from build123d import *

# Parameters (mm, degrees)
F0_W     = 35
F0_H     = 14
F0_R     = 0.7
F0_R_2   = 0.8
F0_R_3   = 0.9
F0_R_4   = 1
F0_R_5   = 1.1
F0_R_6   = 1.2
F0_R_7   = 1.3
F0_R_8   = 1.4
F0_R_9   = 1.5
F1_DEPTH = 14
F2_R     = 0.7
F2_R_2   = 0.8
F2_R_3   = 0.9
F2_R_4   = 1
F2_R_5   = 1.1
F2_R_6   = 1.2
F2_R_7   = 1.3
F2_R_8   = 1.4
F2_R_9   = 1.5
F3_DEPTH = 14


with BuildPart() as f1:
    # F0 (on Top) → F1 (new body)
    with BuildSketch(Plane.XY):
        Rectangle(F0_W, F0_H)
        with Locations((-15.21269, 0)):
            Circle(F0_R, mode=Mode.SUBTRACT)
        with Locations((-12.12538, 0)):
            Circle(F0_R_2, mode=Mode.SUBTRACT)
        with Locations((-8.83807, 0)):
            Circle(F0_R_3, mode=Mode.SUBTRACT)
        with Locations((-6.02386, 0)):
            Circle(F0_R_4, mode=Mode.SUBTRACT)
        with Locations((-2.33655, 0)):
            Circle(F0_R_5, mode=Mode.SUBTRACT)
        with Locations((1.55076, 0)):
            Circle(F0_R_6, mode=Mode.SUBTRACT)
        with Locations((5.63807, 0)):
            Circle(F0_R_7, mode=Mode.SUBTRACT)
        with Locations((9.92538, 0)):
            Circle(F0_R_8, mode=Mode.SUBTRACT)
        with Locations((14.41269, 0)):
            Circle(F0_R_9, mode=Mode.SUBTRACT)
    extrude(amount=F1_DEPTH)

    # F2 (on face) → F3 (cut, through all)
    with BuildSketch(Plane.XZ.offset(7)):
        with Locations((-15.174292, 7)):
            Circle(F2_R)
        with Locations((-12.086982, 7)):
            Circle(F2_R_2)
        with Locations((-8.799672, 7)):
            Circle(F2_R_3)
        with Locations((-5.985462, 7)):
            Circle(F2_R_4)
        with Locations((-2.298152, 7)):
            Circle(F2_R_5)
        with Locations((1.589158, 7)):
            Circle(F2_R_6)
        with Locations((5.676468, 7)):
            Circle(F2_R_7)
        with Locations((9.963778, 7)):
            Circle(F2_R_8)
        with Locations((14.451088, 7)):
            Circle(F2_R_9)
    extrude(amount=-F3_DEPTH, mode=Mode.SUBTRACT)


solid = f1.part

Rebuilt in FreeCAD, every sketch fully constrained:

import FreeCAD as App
import Part
import Sketcher
from FreeCAD import Vector


def add_polygon(sketch, points):
    """Adds a closed chain of lines whose ends are joined by coincident constraints."""
    first, n = sketch.GeometryCount, len(points)
    for a, b in zip(points, points[1:] + points[:1]):
        sketch.addGeometry(Part.LineSegment(App.Vector(*a, 0), App.Vector(*b, 0)), False)
    for i in range(n):
        sketch.addConstraint(Sketcher.Constraint("Coincident", first + i, 2, first + (i + 1) % n, 1))

doc = App.newDocument("Part")
body = doc.addObject("PartDesign::Body", "Body")

sketch1 = body.newObject("Sketcher::SketchObject", "Sketch")
sketch1.AttachmentSupport = (doc.getObject("XY_Plane"), [""])
sketch1.MapMode = "FlatFace"
add_polygon(sketch1, [(-17.5, 7), (-17.5, -7), (17.5, -7), (17.5, 7)])
sketch1.addGeometry(Part.Circle(Vector(-15.21269, 0, 0), Vector(0, 0, 1), 0.7), False)
sketch1.addGeometry(Part.Circle(Vector(-12.12538, 0, 0), Vector(0, 0, 1), 0.8), False)
sketch1.addGeometry(Part.Circle(Vector(-8.83807, 0, 0), Vector(0, 0, 1), 0.9), False)
sketch1.addGeometry(Part.Circle(Vector(-6.02386, 0, 0), Vector(0, 0, 1), 1), False)
sketch1.addGeometry(Part.Circle(Vector(-2.33655, 0, 0), Vector(0, 0, 1), 1.1), False)
sketch1.addGeometry(Part.Circle(Vector(1.55076, 0, 0), Vector(0, 0, 1), 1.2), False)
sketch1.addGeometry(Part.Circle(Vector(5.63807, 0, 0), Vector(0, 0, 1), 1.3), False)
sketch1.addGeometry(Part.Circle(Vector(9.92538, 0, 0), Vector(0, 0, 1), 1.4), False)
sketch1.addGeometry(Part.Circle(Vector(14.41269, 0, 0), Vector(0, 0, 1), 1.5), False)
sketch1.addConstraint([
    Sketcher.Constraint("Vertical", 0),
    Sketcher.Constraint("Horizontal", 1),
    Sketcher.Constraint("Vertical", 2),
    Sketcher.Constraint("Horizontal", 3),
    Sketcher.Constraint("Symmetric", 0, 2, 2, 2, -1, 1),
    Sketcher.Constraint("PointOnObject", 4, 3, -1),
    Sketcher.Constraint("PointOnObject", 5, 3, -1),
    Sketcher.Constraint("PointOnObject", 6, 3, -1),
    Sketcher.Constraint("PointOnObject", 7, 3, -1),
    Sketcher.Constraint("PointOnObject", 8, 3, -1),
    Sketcher.Constraint("PointOnObject", 9, 3, -1),
    Sketcher.Constraint("PointOnObject", 10, 3, -1),
    Sketcher.Constraint("PointOnObject", 11, 3, -1),
    Sketcher.Constraint("PointOnObject", 12, 3, -1),
    Sketcher.Constraint("Diameter", 7, 2.0),
    Sketcher.Constraint("Diameter", 12, 3.0),
    Sketcher.Constraint("Diameter", 4, 1.4),
    Sketcher.Constraint("Diameter", 5, 1.6),
    Sketcher.Constraint("Diameter", 6, 1.8),
    Sketcher.Constraint("Diameter", 8, 2.2),
    Sketcher.Constraint("Diameter", 9, 2.4),
    Sketcher.Constraint("Diameter", 10, 2.6),
    Sketcher.Constraint("Diameter", 11, 2.8),
    Sketcher.Constraint("DistanceX", 1, 1, 1, 2, 35.0),
    Sketcher.Constraint("DistanceY", 0, 2, 0, 1, 14.0),
    Sketcher.Constraint("DistanceX", 4, 3, -1, 1, 15.21269),
    Sketcher.Constraint("DistanceX", 5, 3, -1, 1, 12.12538),
    Sketcher.Constraint("DistanceX", 6, 3, -1, 1, 8.83807),
    Sketcher.Constraint("DistanceX", 7, 3, -1, 1, 6.02386),
    Sketcher.Constraint("DistanceX", 8, 3, -1, 1, 2.33655),
    Sketcher.Constraint("DistanceX", -1, 1, 9, 3, 1.55076),
    Sketcher.Constraint("DistanceX", -1, 1, 10, 3, 5.63807),
    Sketcher.Constraint("DistanceX", -1, 1, 11, 3, 9.92538),
    Sketcher.Constraint("DistanceX", -1, 1, 12, 3, 14.41269),
])
pad1 = body.newObject("PartDesign::Pad", "Pad")
pad1.Profile = sketch1
pad1.Length = 14

sketch2 = body.newObject("Sketcher::SketchObject", "Sketch001")
sketch2.AttachmentSupport = (doc.getObject("XZ_Plane"), [""])
sketch2.MapMode = "FlatFace"
sketch2.AttachmentOffset = App.Placement(Vector(0, 0, 7), App.Rotation())
sketch2.addGeometry([
    Part.Circle(Vector(-15.174292, 7, 0), Vector(0, 0, 1), 0.7),
    Part.Circle(Vector(-12.086982, 7, 0), Vector(0, 0, 1), 0.8),
    Part.Circle(Vector(-8.799672, 7, 0), Vector(0, 0, 1), 0.9),
    Part.Circle(Vector(-5.985462, 7, 0), Vector(0, 0, 1), 1),
    Part.Circle(Vector(-2.298152, 7, 0), Vector(0, 0, 1), 1.1),
    Part.Circle(Vector(1.589158, 7, 0), Vector(0, 0, 1), 1.2),
    Part.Circle(Vector(5.676468, 7, 0), Vector(0, 0, 1), 1.3),
    Part.Circle(Vector(9.963778, 7, 0), Vector(0, 0, 1), 1.4),
    Part.Circle(Vector(14.451088, 7, 0), Vector(0, 0, 1), 1.5),
], False)
sketch2.addConstraint([
    Sketcher.Constraint("Horizontal", 0, 3, 1, 3),
    Sketcher.Constraint("Horizontal", 1, 3, 2, 3),
    Sketcher.Constraint("Horizontal", 2, 3, 3, 3),
    Sketcher.Constraint("Horizontal", 3, 3, 4, 3),
    Sketcher.Constraint("Horizontal", 4, 3, 5, 3),
    Sketcher.Constraint("Horizontal", 5, 3, 6, 3),
    Sketcher.Constraint("Horizontal", 6, 3, 7, 3),
    Sketcher.Constraint("Horizontal", 7, 3, 8, 3),
    Sketcher.Constraint("Diameter", 3, 2.0),
    Sketcher.Constraint("Diameter", 8, 3.0),
    Sketcher.Constraint("Diameter", 0, 1.4),
    Sketcher.Constraint("Diameter", 1, 1.6),
    Sketcher.Constraint("Diameter", 2, 1.8),
    Sketcher.Constraint("Diameter", 4, 2.2),
    Sketcher.Constraint("Diameter", 5, 2.4),
    Sketcher.Constraint("Diameter", 6, 2.6),
    Sketcher.Constraint("Diameter", 7, 2.8),
    Sketcher.Constraint("DistanceY", -1, 1, 0, 3, 7.0),
    Sketcher.Constraint("DistanceX", 2, 3, -1, 1, 8.799672),
    Sketcher.Constraint("DistanceX", 4, 3, -1, 1, 2.298152),
    Sketcher.Constraint("DistanceX", -1, 1, 5, 3, 1.589158),
    Sketcher.Constraint("DistanceX", 0, 3, 1, 3, 3.08731),
    Sketcher.Constraint("DistanceX", 1, 3, 2, 3, 3.28731),
    Sketcher.Constraint("DistanceX", 2, 3, 3, 3, 2.81421),
    Sketcher.Constraint("DistanceX", 5, 3, 6, 3, 4.08731),
    Sketcher.Constraint("DistanceX", 6, 3, 7, 3, 4.28731),
    Sketcher.Constraint("DistanceX", 7, 3, 8, 3, 4.48731),
])
pocket1 = body.newObject("PartDesign::Pocket", "Pocket")
pocket1.Profile = sketch2
pocket1.Type = "ThroughAll"

doc.recompute()
